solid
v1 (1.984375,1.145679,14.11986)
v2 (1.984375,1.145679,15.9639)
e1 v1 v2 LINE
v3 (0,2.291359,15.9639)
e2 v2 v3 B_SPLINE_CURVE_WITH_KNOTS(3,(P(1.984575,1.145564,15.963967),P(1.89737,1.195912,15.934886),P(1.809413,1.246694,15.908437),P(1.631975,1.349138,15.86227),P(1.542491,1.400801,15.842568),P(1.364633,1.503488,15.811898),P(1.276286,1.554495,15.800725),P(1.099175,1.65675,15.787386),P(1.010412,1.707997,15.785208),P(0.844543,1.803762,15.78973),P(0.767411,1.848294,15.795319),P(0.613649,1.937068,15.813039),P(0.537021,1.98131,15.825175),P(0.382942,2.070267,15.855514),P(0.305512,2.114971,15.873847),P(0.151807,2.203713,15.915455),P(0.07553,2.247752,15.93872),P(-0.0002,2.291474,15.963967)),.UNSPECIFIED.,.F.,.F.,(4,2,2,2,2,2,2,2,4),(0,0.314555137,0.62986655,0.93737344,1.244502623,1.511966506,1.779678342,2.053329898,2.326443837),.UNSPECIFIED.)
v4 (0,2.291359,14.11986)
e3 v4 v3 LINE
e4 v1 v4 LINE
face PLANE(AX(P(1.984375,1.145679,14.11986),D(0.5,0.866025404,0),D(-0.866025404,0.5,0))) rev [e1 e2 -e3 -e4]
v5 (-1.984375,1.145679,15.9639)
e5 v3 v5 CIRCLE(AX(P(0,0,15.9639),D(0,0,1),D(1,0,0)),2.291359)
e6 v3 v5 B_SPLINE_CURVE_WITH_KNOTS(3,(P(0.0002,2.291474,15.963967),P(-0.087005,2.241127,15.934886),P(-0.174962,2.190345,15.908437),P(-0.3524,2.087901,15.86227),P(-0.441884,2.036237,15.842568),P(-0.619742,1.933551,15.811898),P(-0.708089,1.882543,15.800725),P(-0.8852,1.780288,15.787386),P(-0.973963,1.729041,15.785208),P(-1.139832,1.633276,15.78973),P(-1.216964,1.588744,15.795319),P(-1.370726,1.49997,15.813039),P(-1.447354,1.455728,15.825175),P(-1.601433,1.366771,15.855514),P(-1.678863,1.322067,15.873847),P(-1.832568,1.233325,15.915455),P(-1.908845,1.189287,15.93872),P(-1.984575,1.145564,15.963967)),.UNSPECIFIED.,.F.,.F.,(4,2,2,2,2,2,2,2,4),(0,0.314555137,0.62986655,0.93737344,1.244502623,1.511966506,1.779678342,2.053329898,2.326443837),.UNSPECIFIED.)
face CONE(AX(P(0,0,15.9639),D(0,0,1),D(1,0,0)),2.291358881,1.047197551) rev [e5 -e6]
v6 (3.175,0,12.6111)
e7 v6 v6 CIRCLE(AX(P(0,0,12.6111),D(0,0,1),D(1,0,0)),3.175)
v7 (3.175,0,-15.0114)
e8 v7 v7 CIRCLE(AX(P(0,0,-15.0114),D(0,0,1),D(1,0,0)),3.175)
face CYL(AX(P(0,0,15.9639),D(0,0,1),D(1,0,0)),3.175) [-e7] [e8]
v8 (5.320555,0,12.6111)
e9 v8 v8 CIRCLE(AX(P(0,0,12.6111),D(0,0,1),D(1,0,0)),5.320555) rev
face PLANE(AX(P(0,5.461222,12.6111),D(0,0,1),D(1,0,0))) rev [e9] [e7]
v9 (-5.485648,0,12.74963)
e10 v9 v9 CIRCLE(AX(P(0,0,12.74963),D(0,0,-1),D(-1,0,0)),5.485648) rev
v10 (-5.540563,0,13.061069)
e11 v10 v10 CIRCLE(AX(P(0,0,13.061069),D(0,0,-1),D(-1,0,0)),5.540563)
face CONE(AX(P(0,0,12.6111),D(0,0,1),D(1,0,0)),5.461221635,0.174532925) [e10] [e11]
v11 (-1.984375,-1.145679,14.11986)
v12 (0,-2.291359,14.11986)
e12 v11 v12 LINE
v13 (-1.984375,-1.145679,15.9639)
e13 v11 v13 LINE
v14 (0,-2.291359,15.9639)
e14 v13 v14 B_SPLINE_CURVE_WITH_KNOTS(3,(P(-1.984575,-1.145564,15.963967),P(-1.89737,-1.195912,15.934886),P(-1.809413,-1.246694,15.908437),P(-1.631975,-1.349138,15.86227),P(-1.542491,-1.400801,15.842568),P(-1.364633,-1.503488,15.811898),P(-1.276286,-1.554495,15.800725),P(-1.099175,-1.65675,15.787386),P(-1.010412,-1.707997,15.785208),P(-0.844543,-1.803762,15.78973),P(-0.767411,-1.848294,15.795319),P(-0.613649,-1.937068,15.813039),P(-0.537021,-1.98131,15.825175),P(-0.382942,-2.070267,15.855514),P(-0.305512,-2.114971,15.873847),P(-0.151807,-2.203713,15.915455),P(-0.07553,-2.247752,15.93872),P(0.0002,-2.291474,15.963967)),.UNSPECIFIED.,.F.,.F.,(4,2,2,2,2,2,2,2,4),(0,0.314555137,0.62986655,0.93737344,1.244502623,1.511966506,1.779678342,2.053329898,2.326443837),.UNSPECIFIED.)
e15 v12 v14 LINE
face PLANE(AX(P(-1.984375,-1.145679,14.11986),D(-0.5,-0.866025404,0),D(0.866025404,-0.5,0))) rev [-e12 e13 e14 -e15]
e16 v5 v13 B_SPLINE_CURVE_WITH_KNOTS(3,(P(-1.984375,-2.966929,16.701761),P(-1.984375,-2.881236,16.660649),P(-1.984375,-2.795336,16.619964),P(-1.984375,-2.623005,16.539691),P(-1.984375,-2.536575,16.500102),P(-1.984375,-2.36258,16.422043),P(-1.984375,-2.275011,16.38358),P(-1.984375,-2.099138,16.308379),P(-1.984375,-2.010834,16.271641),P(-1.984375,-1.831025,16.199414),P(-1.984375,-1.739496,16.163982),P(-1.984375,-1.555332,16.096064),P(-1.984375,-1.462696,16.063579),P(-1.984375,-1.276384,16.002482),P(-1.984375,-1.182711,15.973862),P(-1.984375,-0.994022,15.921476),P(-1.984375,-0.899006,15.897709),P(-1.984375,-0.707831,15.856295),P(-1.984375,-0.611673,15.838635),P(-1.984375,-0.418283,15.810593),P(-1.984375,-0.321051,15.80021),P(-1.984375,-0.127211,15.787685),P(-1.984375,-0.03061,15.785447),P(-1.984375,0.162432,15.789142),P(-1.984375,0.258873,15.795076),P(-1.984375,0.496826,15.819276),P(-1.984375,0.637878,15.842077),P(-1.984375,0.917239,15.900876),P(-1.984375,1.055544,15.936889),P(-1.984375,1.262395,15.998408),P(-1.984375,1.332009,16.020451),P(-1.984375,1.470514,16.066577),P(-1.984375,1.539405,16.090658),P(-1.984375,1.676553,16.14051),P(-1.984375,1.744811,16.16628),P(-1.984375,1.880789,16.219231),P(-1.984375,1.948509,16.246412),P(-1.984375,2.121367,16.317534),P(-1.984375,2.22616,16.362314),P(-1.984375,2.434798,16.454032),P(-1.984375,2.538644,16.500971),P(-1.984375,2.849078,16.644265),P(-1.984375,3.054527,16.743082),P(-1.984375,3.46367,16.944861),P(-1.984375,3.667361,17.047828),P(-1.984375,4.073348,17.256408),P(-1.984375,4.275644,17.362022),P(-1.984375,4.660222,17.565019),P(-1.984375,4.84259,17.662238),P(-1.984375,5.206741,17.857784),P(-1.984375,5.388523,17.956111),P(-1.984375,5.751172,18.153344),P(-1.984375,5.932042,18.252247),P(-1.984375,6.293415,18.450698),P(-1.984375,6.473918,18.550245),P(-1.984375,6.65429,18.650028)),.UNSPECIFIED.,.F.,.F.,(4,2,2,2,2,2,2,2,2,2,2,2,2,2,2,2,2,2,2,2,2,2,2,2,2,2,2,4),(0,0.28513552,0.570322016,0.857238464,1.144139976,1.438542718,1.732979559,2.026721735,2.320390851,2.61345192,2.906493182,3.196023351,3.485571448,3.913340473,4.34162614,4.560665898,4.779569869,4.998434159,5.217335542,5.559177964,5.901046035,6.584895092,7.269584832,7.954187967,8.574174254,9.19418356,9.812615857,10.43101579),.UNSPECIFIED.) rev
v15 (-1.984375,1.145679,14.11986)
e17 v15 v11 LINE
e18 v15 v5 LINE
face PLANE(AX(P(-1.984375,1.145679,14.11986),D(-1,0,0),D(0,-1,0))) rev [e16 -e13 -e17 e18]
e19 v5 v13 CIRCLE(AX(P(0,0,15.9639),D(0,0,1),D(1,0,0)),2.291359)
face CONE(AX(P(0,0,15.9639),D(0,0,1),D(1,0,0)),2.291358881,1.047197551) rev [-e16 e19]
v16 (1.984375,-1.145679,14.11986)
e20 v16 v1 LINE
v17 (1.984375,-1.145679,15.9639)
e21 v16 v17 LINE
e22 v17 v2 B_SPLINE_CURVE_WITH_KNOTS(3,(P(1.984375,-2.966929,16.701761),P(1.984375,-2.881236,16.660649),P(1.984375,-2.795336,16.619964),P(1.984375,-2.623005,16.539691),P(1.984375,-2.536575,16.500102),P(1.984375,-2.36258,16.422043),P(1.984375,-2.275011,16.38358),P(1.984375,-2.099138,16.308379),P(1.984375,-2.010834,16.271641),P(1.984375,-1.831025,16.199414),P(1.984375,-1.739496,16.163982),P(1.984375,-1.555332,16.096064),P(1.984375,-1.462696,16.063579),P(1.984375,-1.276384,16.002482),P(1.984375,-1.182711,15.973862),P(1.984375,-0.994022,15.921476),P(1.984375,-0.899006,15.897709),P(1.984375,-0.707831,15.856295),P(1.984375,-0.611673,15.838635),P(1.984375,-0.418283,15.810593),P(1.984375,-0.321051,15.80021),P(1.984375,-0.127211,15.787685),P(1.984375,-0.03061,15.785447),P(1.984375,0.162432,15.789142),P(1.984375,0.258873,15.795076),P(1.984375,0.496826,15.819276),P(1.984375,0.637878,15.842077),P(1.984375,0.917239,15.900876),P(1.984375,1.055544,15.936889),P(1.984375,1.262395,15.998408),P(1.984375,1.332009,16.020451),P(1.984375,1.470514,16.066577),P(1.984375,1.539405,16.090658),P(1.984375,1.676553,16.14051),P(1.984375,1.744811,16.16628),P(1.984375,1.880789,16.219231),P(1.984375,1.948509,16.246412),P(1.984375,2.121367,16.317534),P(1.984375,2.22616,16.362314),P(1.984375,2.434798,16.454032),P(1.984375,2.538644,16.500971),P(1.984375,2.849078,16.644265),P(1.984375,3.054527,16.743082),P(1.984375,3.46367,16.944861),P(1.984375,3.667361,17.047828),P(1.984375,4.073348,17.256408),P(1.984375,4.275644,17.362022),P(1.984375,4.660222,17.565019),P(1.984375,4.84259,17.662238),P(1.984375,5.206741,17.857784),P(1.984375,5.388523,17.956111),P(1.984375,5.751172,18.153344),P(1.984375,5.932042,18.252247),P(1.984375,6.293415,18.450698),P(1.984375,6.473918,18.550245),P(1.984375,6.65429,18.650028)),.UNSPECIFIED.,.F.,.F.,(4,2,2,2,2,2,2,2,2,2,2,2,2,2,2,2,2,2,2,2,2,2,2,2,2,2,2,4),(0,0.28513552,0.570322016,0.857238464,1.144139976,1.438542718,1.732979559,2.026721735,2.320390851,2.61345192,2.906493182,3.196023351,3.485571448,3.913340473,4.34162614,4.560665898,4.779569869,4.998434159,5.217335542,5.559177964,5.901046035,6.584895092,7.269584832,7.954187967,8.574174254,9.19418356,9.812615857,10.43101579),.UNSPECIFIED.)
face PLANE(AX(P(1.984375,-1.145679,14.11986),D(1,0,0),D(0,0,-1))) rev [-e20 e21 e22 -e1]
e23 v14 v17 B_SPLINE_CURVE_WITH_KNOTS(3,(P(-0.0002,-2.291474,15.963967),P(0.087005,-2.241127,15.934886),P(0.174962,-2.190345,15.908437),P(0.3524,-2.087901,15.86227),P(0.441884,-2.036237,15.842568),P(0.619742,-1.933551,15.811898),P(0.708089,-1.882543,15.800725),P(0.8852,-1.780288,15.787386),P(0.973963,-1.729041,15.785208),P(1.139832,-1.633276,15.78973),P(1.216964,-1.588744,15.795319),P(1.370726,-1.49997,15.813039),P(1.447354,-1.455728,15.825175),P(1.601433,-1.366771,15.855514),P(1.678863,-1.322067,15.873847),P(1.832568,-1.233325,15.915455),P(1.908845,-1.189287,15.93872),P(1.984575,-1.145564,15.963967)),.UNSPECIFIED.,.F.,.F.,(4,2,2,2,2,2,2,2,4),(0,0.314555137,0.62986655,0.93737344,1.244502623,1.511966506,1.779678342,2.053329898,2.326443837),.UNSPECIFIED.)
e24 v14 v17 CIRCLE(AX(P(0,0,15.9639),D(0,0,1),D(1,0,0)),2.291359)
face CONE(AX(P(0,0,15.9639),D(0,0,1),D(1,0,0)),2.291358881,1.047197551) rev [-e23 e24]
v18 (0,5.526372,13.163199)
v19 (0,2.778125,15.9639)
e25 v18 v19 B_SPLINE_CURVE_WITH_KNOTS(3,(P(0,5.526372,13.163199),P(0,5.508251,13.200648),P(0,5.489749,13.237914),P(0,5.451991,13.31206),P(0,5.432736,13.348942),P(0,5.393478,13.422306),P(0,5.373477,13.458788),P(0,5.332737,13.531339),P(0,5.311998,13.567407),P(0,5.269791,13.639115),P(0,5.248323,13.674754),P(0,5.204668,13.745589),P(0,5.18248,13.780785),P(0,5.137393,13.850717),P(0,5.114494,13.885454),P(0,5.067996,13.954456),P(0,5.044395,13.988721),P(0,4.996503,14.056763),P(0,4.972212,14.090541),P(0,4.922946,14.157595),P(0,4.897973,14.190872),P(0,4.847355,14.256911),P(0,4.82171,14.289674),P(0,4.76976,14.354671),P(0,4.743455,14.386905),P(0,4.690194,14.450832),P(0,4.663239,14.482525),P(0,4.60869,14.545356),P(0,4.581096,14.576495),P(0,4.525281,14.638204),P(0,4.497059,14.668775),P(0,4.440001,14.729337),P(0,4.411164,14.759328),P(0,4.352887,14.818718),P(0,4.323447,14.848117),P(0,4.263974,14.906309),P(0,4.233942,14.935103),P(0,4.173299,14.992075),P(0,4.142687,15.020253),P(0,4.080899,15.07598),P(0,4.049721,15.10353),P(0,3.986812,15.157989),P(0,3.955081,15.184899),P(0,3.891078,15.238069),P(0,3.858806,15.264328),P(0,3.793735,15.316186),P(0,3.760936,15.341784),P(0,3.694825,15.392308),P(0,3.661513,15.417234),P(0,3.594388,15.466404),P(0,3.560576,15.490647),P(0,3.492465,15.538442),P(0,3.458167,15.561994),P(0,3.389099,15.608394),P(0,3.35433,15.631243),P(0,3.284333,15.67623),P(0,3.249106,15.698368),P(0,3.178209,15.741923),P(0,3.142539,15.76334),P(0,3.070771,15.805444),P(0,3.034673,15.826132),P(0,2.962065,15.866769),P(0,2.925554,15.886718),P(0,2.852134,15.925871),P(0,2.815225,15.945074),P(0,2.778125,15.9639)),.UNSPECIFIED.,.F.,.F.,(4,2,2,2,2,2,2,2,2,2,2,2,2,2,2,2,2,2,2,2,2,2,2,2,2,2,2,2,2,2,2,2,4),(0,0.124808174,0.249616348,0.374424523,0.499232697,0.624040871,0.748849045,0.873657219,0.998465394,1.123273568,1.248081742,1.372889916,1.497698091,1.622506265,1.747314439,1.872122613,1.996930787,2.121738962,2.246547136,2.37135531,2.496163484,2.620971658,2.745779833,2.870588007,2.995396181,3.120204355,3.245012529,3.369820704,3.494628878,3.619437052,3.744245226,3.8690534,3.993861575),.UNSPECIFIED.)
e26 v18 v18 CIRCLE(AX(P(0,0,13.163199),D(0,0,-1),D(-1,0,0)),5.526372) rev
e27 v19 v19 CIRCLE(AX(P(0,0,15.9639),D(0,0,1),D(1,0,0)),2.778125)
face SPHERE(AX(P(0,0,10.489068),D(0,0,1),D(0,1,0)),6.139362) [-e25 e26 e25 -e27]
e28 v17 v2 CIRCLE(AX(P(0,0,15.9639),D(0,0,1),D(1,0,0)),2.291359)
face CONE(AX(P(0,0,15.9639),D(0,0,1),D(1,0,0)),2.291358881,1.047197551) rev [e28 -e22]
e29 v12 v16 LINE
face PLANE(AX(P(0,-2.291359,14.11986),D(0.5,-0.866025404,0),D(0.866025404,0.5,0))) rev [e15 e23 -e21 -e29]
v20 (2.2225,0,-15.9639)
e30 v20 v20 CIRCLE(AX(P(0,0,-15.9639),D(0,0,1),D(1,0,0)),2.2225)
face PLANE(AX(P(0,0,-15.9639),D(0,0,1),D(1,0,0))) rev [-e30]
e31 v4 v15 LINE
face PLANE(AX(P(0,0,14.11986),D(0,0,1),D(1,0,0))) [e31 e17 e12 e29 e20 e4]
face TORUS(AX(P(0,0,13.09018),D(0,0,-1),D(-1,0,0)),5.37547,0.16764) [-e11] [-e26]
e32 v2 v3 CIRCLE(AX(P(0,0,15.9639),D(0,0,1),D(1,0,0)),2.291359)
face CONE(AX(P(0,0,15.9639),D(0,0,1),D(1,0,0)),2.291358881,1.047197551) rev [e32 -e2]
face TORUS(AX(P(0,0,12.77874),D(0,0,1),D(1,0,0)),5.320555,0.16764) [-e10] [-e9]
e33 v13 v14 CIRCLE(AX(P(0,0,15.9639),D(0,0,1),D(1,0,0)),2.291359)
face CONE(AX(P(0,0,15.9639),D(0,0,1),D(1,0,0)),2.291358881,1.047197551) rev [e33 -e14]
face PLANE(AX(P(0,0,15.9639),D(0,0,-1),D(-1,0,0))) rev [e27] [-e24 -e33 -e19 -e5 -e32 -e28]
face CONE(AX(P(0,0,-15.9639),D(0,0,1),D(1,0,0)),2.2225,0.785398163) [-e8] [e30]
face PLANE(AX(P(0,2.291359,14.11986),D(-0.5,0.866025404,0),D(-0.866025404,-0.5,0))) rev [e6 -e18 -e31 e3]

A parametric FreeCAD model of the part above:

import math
import FreeCAD as App
import Part
import Sketcher
from FreeCAD import Vector
Q = App.Units.Quantity


def edges_at(feature, points):
    """Names of the edges that pass closest to the given points."""
    edges = feature.Shape.Edges
    near = lambda p: min(range(len(edges)), key=lambda i: edges[i].distToShape(Part.Vertex(*p))[0])
    return sorted({f"Edge{near(p) + 1}" for p in points})

doc = App.newDocument("Part")
body = doc.addObject("PartDesign::Body", "Body")

sketch1 = doc.addObject("Sketcher::SketchObject", "Sketch")
body.addObject(sketch1)
sketch1.AttachmentSupport = (doc.YZ_Plane, [""])
sketch1.MapMode = "FlatFace"
sketch1.addGeometry([
    Part.LineSegment(Vector(2.8, 16, 0), Vector(0, 16, 0)),
    Part.LineSegment(Vector(0, 16, 0), Vector(0, -16, 0)),
    Part.LineSegment(Vector(0, -16, 0), Vector(2.2, -16, 0)),
    Part.LineSegment(Vector(2.2, -16, 0), Vector(3.2, -15, 0)),
    Part.LineSegment(Vector(3.2, -15, 0), Vector(3.2, 12.6, 0)),
    Part.LineSegment(Vector(3.2, 12.6, 0), Vector(5.5, 12.6, 0)),
    Part.LineSegment(Vector(5.5, 12.6, 0), Vector(5.5, 13.1, 0)),
    Part.ArcOfCircle(Part.Circle(Vector(0, 10.5, 0), Vector(0, 0, 1), 6.1), math.radians(25), math.radians(63)),
], False)
sketch1.addConstraint([
    Sketcher.Constraint("Coincident", 0, 2, 1, 1),
    Sketcher.Constraint("Coincident", 1, 2, 2, 1),
    Sketcher.Constraint("Coincident", 2, 2, 3, 1),
    Sketcher.Constraint("Coincident", 3, 2, 4, 1),
    Sketcher.Constraint("Coincident", 4, 2, 5, 1),
    Sketcher.Constraint("Coincident", 5, 2, 6, 1),
    Sketcher.Constraint("Coincident", 6, 2, 7, 1),
    Sketcher.Constraint("Coincident", 7, 2, 0, 1),
    Sketcher.Constraint("Horizontal", 0),
    Sketcher.Constraint("Vertical", 1),
    Sketcher.Constraint("Horizontal", 2),
    Sketcher.Constraint("Vertical", 4),
    Sketcher.Constraint("Horizontal", 5),
    Sketcher.Constraint("Symmetric", 0, 2, 1, 2, -1, 1),
    Sketcher.Constraint("PointOnObject", 7, 3, -2),
    Sketcher.Constraint("Angle", 3, Q("45 deg")),
    Sketcher.Constraint("Angle", 6, Q("80 deg")),
    Sketcher.Constraint("DistanceX", 0, 2, 0, 1, Q("0.109375 in")),
    Sketcher.Constraint("DistanceY", 1, 2, 1, 1, Q("1.257 in")),
    Sketcher.Constraint("DistanceX", 2, 1, 2, 2, Q("0.0875 in")),
    Sketcher.Constraint("DistanceY", 4, 1, 4, 2, Q("1.0875 in")),
    Sketcher.Constraint("DistanceX", -1, 1, 3, 2, Q("0.125 in")),
    Sketcher.Constraint("Radius", 7, Q("6.139362 mm")),
    Sketcher.Constraint("DistanceX", -1, 1, 6, 2, Q("0.2185 in")),
])
revolution = doc.addObject("PartDesign::Revolution", "Revolution")
body.addObject(revolution)
revolution.Profile = sketch1
revolution.ReferenceAxis = (sketch1, ["V_Axis"])
revolution.Angle = 360

sketch2 = doc.addObject("Sketcher::SketchObject", "Sketch001")
body.addObject(sketch2)
sketch2.AttachmentSupport = (doc.XY_Plane, [""])
sketch2.MapMode = "FlatFace"
sketch2.AttachmentOffset = App.Placement(Vector(0, 0, 0.6285 * 25.4), App.Rotation())
sketch2.addGeometry([
    Part.LineSegment(Vector(-2, -1.1, 0), Vector(0, -2.3, 0)),
    Part.LineSegment(Vector(0, -2.3, 0), Vector(2, -1.1, 0)),
    Part.LineSegment(Vector(2, -1.1, 0), Vector(2, 1.1, 0)),
    Part.LineSegment(Vector(2, 1.1, 0), Vector(0, 2.3, 0)),
    Part.LineSegment(Vector(0, 2.3, 0), Vector(-2, 1.1, 0)),
    Part.LineSegment(Vector(-2, 1.1, 0), Vector(-2, -1.1, 0)),
], False)
sketch2.addConstraint([
    Sketcher.Constraint("Coincident", 0, 2, 1, 1),
    Sketcher.Constraint("Coincident", 1, 2, 2, 1),
    Sketcher.Constraint("Coincident", 2, 2, 3, 1),
    Sketcher.Constraint("Coincident", 3, 2, 4, 1),
    Sketcher.Constraint("Coincident", 4, 2, 5, 1),
    Sketcher.Constraint("Coincident", 5, 2, 0, 1),
    Sketcher.Constraint("Vertical", 2),
    Sketcher.Constraint("Vertical", 5),
    Sketcher.Constraint("Symmetric", 0, 2, 3, 2, -1, 1),
    Sketcher.Constraint("Symmetric", 1, 2, 4, 2, -1, 1),
    Sketcher.Constraint("PointOnObject", 0, 2, -2),
    Sketcher.Constraint("Parallel", 0, 3),
    Sketcher.Constraint("Horizontal", 2, 2, 4, 2),
    Sketcher.Constraint("Angle", 0, Q("-30 deg")),
    Sketcher.Constraint("DistanceX", -1, 1, 1, 2, Q("0.078125 in")),
    Sketcher.Constraint("DistanceY", 2, 1, 2, 2, Q("2.291359 mm")),
])
pocket1 = doc.addObject("PartDesign::Pocket", "Pocket")
body.addObject(pocket1)
pocket1.Profile = sketch2
pocket1.Length = Q("0.0726 in")

sketch3 = doc.addObject("Sketcher::SketchObject", "Sketch002")
body.addObject(sketch3)
sketch3.AttachmentSupport = (doc.YZ_Plane, [""])
sketch3.MapMode = "FlatFace"
sketch3.addGeometry([
    Part.LineSegment(Vector(0, 16, 0), Vector(-2.3, 16, 0)),
    Part.LineSegment(Vector(-2.3, 16, 0), Vector(0, 14.6, 0)),
    Part.LineSegment(Vector(0, 14.6, 0), Vector(0, 16, 0)),
], False)
sketch3.addConstraint([
    Sketcher.Constraint("Coincident", 0, 2, 1, 1),
    Sketcher.Constraint("Coincident", 1, 2, 2, 1),
    Sketcher.Constraint("Coincident", 2, 2, 0, 1),
    Sketcher.Constraint("Horizontal", 0),
    Sketcher.Constraint("Vertical", 2),
    Sketcher.Constraint("PointOnObject", 1, 2, -2),
    Sketcher.Constraint("Angle", 1, Q("-30 deg")),
    Sketcher.Constraint("DistanceY", -1, 1, 0, 2, Q("0.6285 in")),
    Sketcher.Constraint("DistanceX", 0, 2, 0, 1, Q("2.291359 mm")),
])
groove = doc.addObject("PartDesign::Groove", "Groove")
body.addObject(groove)
groove.Profile = sketch3
groove.ReferenceAxis = (sketch3, ["V_Axis"])
groove.Angle = 360
doc.recompute()

fillet = doc.addObject("PartDesign::Fillet", "Fillet")
body.addObject(fillet)
fillet.Base = (groove, edges_at(groove, [(-5.461, 0, 12.611), (-5.55, 0, 13.114)]))
fillet.Radius = Q("0.0066 in")

doc.recompute()
